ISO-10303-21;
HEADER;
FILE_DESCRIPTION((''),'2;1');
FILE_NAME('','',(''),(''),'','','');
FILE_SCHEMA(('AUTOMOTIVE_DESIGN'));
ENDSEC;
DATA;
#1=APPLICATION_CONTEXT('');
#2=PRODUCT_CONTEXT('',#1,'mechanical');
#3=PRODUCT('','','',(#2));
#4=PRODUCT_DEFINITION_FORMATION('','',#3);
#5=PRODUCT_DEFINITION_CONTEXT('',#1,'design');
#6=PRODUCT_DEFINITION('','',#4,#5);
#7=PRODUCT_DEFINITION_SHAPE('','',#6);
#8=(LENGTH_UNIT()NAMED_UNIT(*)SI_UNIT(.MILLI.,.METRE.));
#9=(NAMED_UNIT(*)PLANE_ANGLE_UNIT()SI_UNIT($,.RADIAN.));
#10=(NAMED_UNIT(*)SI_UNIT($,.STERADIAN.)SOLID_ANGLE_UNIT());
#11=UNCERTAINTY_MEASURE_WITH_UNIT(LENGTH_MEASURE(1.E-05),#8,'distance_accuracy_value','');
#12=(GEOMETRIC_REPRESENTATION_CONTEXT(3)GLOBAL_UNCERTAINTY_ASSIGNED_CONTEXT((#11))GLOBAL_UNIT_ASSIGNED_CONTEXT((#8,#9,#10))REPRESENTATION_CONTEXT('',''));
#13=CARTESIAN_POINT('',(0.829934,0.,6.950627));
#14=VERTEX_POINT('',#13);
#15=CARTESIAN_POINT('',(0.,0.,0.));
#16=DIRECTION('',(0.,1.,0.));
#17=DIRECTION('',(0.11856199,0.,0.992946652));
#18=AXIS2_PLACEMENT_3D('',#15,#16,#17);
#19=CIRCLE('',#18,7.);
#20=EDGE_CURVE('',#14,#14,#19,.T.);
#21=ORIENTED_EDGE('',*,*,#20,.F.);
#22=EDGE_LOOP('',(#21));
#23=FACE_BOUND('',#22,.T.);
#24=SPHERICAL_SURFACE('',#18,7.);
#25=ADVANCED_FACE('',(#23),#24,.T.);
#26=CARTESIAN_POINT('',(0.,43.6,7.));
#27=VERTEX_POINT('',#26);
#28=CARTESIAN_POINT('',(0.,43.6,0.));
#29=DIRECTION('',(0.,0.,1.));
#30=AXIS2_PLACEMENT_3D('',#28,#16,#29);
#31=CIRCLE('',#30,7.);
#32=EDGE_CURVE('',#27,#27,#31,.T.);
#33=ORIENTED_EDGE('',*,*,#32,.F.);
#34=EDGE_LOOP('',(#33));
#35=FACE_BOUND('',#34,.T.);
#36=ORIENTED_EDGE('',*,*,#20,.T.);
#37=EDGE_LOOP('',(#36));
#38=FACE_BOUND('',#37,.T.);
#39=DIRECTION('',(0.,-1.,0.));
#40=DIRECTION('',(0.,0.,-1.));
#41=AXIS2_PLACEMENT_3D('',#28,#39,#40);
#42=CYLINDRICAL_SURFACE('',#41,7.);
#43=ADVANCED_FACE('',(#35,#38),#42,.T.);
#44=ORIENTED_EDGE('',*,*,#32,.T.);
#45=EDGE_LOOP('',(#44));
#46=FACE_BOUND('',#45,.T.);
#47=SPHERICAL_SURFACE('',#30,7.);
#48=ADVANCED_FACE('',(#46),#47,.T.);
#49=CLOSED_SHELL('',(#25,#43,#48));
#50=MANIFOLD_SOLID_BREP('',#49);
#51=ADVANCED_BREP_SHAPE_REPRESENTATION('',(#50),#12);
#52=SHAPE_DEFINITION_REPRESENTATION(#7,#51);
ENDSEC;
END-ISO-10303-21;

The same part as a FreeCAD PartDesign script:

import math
import FreeCAD as App
import Part
import Sketcher
Q = App.Units.Quantity

doc = App.newDocument("Part")
body = doc.addObject("PartDesign::Body", "Body")

sketch1 = body.newObject("Sketcher::SketchObject", "Sketch")
sketch1.AttachmentSupport = (doc.getObject("XZ_Plane"), [""])
sketch1.MapMode = "FlatFace"
sketch1.addGeometry(Part.Circle(App.Vector(0, 0, 0), App.Vector(0, 0, 1), 7), False)
sketch1.addConstraint(Sketcher.Constraint("Coincident", 0, 3, -1, 1))
sketch1.addConstraint(Sketcher.Constraint("Diameter", 0, Q("14 mm")))
pad1 = body.newObject("PartDesign::Pad", "Pad")
pad1.Profile = sketch1
pad1.Length = 43.6
pad1.Reversed = True

sketch2 = body.newObject("Sketcher::SketchObject", "Sketch001")
sketch2.AttachmentSupport = (doc.getObject("XZ_Plane"), [""])
sketch2.MapMode = "FlatFace"
sketch2.addGeometry(Part.LineSegment(App.Vector(0.415701, 6.987646, 0), App.Vector(-0.415701, -6.987646, 0)), False)
sketch2.addGeometry(Part.ArcOfCircle(Part.Circle(App.Vector(0, 0, 0), App.Vector(0, 0, 1), 7), math.radians(-93.404559), math.radians(86.595441)), False)
sketch2.addGeometry(Part.LineSegment(App.Vector(0.415701, 6.987646, 0), App.Vector(-0.415701, -6.987646, 0)), True)
sketch2.addConstraint(Sketcher.Constraint("Coincident", 0, 1, 1, 2))
sketch2.addConstraint(Sketcher.Constraint("Coincident", 1, 1, 0, 2))
sketch2.addConstraint(Sketcher.Constraint("Coincident", 1, 3, -1, 1))
sketch2.addConstraint(Sketcher.Constraint("Coincident", 2, 1, 0, 1))
sketch2.addConstraint(Sketcher.Constraint("Coincident", 2, 2, 1, 1))
sketch2.addConstraint(Sketcher.Constraint("Radius", 1, Q("7 mm")))
sketch2.addConstraint(Sketcher.Constraint("DistanceX", -1, 1, 0, 1, Q("0.415701 mm")))
sketch2.addConstraint(Sketcher.Constraint("DistanceX", 1, 1, -1, 1, Q("0.415701 mm")))
revolution = body.newObject("PartDesign::Revolution", "Revolution")
revolution.Profile = sketch2
revolution.ReferenceAxis = (sketch2, ["Axis0"])
revolution.Angle = 180

sketch3 = body.newObject("Sketcher::SketchObject", "Sketch002")
sketch3.AttachmentSupport = (doc.getObject("XZ_Plane"), [""])
sketch3.MapMode = "FlatFace"
sketch3.AttachmentOffset = App.Placement(App.Vector(0, 0, -43.6), App.Rotation())
sketch3.addGeometry(Part.LineSegment(App.Vector(7, 0, 0), App.Vector(-7, 0, 0)), False)
sketch3.addGeometry(Part.ArcOfCircle(Part.Circle(App.Vector(0, 0, 0), App.Vector(0, 0, 1), 7), math.radians(0), math.radians(180)), False)
sketch3.addConstraint(Sketcher.Constraint("Coincident", 0, 1, 1, 1))
sketch3.addConstraint(Sketcher.Constraint("Coincident", 1, 2, 0, 2))
sketch3.addConstraint(Sketcher.Constraint("Horizontal", 0))
sketch3.addConstraint(Sketcher.Constraint("Coincident", 1, 3, -1, 1))
sketch3.addConstraint(Sketcher.Constraint("PointOnObject", 0, 1, -1))
sketch3.addConstraint(Sketcher.Constraint("Radius", 1, Q("7 mm")))
revolution2 = body.newObject("PartDesign::Revolution", "Revolution001")
revolution2.Profile = sketch3
revolution2.ReferenceAxis = (sketch3, ["H_Axis"])
revolution2.Angle = 180
revolution2.Reversed = True

doc.recompute()
